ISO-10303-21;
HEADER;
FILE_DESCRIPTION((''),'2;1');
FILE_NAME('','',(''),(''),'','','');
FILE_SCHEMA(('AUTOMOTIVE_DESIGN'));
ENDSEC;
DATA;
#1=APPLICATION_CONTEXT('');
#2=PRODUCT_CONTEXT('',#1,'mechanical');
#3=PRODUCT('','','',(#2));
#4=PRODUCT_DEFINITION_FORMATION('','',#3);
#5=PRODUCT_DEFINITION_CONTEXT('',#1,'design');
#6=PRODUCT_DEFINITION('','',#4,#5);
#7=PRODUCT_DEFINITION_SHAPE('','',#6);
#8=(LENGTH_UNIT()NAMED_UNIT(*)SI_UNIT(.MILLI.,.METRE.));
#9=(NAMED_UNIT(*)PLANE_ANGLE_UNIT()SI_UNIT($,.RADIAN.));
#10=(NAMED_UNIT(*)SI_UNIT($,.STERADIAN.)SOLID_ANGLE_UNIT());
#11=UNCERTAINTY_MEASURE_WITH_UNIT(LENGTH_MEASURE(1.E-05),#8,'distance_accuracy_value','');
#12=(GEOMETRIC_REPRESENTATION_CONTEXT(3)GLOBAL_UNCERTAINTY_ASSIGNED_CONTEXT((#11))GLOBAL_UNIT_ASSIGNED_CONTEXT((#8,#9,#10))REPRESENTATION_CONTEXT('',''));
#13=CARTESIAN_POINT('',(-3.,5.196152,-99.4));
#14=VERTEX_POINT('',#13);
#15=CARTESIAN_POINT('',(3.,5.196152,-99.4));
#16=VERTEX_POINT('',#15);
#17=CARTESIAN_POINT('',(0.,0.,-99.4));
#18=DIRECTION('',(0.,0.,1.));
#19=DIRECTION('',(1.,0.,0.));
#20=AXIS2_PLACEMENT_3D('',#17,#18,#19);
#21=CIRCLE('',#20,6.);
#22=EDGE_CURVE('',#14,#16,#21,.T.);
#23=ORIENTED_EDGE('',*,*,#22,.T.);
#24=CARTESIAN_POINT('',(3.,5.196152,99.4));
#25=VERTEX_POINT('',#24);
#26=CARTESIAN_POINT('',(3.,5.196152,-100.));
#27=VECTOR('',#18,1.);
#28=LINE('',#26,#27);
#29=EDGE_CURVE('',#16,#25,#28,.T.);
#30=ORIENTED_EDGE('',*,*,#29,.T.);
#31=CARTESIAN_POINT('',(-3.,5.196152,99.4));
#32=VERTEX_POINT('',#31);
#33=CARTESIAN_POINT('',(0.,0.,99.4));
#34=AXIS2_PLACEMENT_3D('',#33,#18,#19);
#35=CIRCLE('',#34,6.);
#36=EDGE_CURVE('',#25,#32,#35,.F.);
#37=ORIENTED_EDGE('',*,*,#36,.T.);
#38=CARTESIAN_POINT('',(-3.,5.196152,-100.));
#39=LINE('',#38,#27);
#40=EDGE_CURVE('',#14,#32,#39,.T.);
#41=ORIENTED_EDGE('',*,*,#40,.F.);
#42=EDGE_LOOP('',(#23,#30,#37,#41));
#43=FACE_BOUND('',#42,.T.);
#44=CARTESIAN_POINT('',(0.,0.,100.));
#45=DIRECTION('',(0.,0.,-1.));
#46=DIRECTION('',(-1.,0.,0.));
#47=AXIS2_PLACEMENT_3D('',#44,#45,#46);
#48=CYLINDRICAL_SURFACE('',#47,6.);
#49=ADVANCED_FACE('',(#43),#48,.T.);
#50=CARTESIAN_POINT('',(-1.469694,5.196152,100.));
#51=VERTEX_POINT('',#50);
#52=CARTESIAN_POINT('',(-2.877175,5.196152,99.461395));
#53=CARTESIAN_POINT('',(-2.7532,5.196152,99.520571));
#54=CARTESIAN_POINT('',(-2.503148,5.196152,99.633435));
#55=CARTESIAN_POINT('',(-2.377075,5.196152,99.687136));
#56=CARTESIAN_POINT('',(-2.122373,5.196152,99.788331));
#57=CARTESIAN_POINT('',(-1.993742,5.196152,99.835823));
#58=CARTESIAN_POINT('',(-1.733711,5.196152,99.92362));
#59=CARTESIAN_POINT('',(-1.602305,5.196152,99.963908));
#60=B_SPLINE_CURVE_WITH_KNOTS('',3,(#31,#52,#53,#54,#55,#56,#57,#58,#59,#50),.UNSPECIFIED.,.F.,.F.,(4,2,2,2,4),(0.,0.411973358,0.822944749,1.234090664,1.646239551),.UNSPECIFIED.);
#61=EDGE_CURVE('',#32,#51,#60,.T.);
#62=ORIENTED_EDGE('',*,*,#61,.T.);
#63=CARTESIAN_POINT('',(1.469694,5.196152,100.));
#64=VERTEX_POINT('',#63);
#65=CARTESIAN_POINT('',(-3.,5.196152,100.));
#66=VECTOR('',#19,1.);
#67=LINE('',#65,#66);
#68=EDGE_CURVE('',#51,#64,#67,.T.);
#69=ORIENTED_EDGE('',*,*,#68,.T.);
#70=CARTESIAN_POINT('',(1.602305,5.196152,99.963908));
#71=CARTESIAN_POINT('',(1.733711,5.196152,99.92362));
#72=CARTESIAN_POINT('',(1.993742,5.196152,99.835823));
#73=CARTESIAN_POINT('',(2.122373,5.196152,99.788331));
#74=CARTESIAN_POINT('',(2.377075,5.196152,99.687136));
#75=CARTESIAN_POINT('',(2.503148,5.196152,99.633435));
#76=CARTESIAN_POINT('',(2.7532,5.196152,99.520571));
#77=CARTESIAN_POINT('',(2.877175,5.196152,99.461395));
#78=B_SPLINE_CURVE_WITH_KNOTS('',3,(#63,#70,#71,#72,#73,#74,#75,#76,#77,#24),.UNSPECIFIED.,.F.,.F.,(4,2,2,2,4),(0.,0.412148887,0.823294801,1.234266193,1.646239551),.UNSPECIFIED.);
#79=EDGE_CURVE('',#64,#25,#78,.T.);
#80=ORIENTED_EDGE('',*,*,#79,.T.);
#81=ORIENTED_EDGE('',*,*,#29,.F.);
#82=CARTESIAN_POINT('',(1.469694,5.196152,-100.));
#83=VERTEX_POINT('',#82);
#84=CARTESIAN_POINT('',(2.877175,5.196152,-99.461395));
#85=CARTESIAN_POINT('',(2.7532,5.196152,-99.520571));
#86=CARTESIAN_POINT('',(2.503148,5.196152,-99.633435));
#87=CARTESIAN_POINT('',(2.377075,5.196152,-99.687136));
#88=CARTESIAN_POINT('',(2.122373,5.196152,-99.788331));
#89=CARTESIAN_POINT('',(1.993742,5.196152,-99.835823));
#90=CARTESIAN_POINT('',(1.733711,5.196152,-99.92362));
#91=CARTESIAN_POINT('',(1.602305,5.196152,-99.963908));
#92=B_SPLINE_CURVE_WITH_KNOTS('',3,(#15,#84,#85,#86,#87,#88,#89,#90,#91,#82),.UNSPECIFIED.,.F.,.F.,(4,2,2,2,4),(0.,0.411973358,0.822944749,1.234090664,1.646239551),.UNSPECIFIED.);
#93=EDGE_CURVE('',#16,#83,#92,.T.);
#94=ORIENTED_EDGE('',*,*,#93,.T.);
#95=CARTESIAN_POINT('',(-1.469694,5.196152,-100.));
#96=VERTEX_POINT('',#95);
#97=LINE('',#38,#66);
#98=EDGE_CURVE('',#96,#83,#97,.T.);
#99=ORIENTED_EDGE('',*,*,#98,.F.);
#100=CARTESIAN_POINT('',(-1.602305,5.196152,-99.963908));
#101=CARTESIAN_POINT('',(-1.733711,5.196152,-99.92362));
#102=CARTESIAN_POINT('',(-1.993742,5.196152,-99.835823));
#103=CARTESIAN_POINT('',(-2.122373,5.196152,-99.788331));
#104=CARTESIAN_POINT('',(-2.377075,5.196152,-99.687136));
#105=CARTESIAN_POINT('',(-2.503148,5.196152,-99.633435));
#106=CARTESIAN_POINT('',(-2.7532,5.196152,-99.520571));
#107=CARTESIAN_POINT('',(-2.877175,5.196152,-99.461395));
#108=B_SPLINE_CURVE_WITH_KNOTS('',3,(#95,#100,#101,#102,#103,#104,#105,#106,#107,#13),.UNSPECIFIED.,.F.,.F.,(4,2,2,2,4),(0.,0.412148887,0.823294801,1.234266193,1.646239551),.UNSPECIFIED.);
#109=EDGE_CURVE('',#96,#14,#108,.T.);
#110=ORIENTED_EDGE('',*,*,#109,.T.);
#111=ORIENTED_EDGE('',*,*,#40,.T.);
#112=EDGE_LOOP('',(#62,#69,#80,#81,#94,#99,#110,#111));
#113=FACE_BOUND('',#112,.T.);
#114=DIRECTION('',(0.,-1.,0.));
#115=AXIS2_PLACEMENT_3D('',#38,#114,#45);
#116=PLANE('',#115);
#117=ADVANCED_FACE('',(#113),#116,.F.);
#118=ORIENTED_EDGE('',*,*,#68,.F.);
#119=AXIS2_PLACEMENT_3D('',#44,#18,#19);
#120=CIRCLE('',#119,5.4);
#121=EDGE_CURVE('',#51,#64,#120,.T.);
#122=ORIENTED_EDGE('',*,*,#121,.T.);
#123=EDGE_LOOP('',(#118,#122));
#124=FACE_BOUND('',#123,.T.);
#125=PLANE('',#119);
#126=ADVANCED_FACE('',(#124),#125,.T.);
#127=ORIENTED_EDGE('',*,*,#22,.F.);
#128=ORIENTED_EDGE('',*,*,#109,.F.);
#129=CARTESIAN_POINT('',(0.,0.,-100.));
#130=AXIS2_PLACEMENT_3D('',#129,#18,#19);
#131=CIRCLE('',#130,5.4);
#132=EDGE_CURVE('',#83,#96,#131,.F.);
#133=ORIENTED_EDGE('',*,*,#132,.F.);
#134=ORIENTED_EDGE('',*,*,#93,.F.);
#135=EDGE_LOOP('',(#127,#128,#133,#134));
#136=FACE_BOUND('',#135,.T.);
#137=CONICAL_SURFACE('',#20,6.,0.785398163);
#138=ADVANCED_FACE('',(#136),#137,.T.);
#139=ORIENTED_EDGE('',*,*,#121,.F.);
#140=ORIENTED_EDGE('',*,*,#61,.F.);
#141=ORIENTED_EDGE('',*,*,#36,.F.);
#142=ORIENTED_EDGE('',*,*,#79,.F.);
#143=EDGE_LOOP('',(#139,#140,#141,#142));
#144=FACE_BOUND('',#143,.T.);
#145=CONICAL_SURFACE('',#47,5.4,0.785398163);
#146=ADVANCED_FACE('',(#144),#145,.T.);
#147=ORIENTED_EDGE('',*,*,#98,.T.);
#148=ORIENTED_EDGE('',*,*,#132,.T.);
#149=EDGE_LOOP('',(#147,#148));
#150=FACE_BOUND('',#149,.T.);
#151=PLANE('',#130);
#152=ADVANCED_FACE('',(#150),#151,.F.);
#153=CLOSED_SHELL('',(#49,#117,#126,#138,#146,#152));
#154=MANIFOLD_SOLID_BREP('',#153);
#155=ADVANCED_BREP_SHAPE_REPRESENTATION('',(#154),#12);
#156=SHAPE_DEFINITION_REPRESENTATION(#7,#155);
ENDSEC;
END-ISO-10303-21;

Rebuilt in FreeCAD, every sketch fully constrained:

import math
import FreeCAD as App
import Part
import Sketcher

V = App.Vector
Q = App.Units.Quantity


def edges_at(feature, points):
    """Names of the edges that pass closest to the given points."""
    edges = feature.Shape.Edges
    near = lambda p: min(range(len(edges)), key=lambda i: edges[i].distToShape(Part.Vertex(*p))[0])
    return sorted({f"Edge{near(p) + 1}" for p in points})

doc = App.newDocument("Part")
params = doc.addObject("Spreadsheet::Sheet", "Params")
for row, (alias, value) in enumerate([
    ("sketch1_diameter", "12 mm"),
    ("pad1_length", "100 mm"),
    ("pad1_length2", "100 mm"),
    ("sketch2_radius", "6 mm"),
    ("sketch2_width", "6 mm"),
    ("chamfer_size", "0.6 mm"),
], start=1):
    params.set(f"A{row}", alias)
    params.set(f"B{row}", "=" + value)
    params.setAlias(f"B{row}", alias)

body = doc.addObject("PartDesign::Body", "Body")

sketch1 = body.newObject("Sketcher::SketchObject", "Sketch")
sketch1.AttachmentSupport = (doc.getObject("XY_Plane"), [""])
sketch1.MapMode = "FlatFace"
sketch1.addGeometry(Part.Circle(V(0, 0, 0), V(0, 0, 1), 6), False)
sketch1.addConstraint([
    Sketcher.Constraint("Coincident", 0, 3, -1, 1),
    Sketcher.Constraint("Diameter", 0, Q("12 mm")),
])
sketch1.setExpression("Constraints[1]", "Params.sketch1_diameter")
pad1 = body.newObject("PartDesign::Pad", "Pad")
pad1.Profile = sketch1
pad1.Type = "TwoLengths"
pad1.setExpression("Length", "Params.pad1_length")
pad1.setExpression("Length2", "Params.pad1_length2")

sketch2 = body.newObject("Sketcher::SketchObject", "Sketch001")
sketch2.AttachmentSupport = (doc.getObject("XY_Plane"), [""])
sketch2.MapMode = "FlatFace"
sketch2.addGeometry([
    Part.LineSegment(V(-3, 5.196152, 0), V(3, 5.196152, 0)),
    Part.ArcOfCircle(Part.Circle(V(0, 0, 0), V(0, 0, 1), 6), math.radians(60), math.radians(120)),
], False)
sketch2.addConstraint([
    Sketcher.Constraint("Coincident", 0, 1, 1, 2),
    Sketcher.Constraint("Coincident", 1, 1, 0, 2),
    Sketcher.Constraint("Horizontal", 0),
    Sketcher.Constraint("Coincident", 1, 3, -1, 1),
    Sketcher.Constraint("Radius", 1, Q("6 mm")),
    Sketcher.Constraint("DistanceX", 0, 1, 0, 2, Q("6 mm")),
])
sketch2.setExpression("Constraints[4]", "Params.sketch2_radius")
sketch2.setExpression("Constraints[5]", "Params.sketch2_width")
pocket1 = body.newObject("PartDesign::Pocket", "Pocket")
pocket1.Profile = sketch2
pocket1.Type = "ThroughAll"
pocket1.Midplane = True
doc.recompute()

chamfer = body.newObject("PartDesign::Chamfer", "Chamfer")
chamfer.Base = (pocket1, edges_at(pocket1, [(0, -6, -100), (0, -6, 100)]))
chamfer.setExpression("Size", "Params.chamfer_size")

doc.recompute()
